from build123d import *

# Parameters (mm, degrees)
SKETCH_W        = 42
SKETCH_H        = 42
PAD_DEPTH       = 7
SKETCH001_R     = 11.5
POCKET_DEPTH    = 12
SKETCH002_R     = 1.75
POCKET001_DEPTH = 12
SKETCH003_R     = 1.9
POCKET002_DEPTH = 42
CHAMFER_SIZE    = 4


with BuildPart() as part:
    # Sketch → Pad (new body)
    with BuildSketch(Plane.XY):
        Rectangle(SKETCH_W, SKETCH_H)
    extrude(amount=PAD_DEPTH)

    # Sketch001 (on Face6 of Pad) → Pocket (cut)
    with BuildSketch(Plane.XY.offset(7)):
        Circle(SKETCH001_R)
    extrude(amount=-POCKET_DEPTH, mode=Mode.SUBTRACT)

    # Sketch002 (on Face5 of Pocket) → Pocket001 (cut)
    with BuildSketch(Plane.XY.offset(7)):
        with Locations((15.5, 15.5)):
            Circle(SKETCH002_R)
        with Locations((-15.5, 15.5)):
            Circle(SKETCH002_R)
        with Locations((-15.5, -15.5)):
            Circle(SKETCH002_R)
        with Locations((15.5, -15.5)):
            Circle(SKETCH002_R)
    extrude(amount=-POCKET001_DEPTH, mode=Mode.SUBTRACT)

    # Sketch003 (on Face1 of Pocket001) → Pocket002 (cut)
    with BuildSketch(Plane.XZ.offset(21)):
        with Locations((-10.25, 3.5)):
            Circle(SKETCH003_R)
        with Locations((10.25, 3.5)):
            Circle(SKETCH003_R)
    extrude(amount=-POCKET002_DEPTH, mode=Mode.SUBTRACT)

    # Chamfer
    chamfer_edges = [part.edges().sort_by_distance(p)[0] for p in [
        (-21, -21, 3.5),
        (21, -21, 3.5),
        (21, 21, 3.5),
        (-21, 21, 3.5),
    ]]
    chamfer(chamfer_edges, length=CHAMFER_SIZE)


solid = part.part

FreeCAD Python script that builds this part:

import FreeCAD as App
import Part
import Sketcher

V = App.Vector
Q = App.Units.Quantity


def edges_at(feature, points):
    """Names of the edges that pass closest to the given points."""
    edges = feature.Shape.Edges
    near = lambda p: min(range(len(edges)), key=lambda i: edges[i].distToShape(Part.Vertex(*p))[0])
    return sorted({f"Edge{near(p) + 1}" for p in points})


def add_polygon(sketch, points):
    """Adds a closed chain of lines whose ends are joined by coincident constraints."""
    first, n = sketch.GeometryCount, len(points)
    for a, b in zip(points, points[1:] + points[:1]):
        sketch.addGeometry(Part.LineSegment(App.Vector(*a, 0), App.Vector(*b, 0)), False)
    for i in range(n):
        sketch.addConstraint(Sketcher.Constraint("Coincident", first + i, 2, first + (i + 1) % n, 1))

doc = App.newDocument("Part")
params = doc.addObject("Spreadsheet::Sheet", "Params")
for row, (alias, value) in enumerate([
    ("sketch1_width", "42 mm"),
    ("pad1_length", "7 mm"),
    ("sketch2_diameter", "23 mm"),
    ("pocket1_length", "12 mm"),
    ("sketch3_diameter", "3.5 mm"),
    ("pocket2_length", "12 mm"),
    ("sketch4_diameter", "3.8 mm"),
    ("pocket3_length", "42 mm"),
    ("chamfer_size", "4 mm"),
], start=1):
    params.set(f"A{row}", alias)
    params.set(f"B{row}", "=" + value)
    params.setAlias(f"B{row}", alias)

body = doc.addObject("PartDesign::Body", "Body")

sketch1 = doc.addObject("Sketcher::SketchObject", "Sketch")
body.addObject(sketch1)
sketch1.AttachmentSupport = (doc.XY_Plane, [""])
sketch1.MapMode = "FlatFace"
add_polygon(sketch1, [(-21, 21), (-21, -21), (21, -21), (21, 21)])
sketch1.addConstraint(Sketcher.Constraint("Vertical", 0))
sketch1.addConstraint(Sketcher.Constraint("Horizontal", 1))
sketch1.addConstraint(Sketcher.Constraint("Vertical", 2))
sketch1.addConstraint(Sketcher.Constraint("Horizontal", 3))
sketch1.addConstraint(Sketcher.Constraint("Symmetric", 0, 2, 2, 2, -1, 1))
sketch1.addConstraint(Sketcher.Constraint("Equal", 3, 0))
sketch1.addConstraint(Sketcher.Constraint("DistanceX", 1, 1, 1, 2, Q("42 mm")))
sketch1.setExpression("Constraints[10]", "Params.sketch1_width")
pad1 = doc.addObject("PartDesign::Pad", "Pad")
body.addObject(pad1)
pad1.Profile = sketch1
pad1.setExpression("Length", "Params.pad1_length")

sketch2 = doc.addObject("Sketcher::SketchObject", "Sketch001")
body.addObject(sketch2)
sketch2.AttachmentSupport = (doc.XY_Plane, [""])
sketch2.MapMode = "FlatFace"
sketch2.AttachmentOffset = App.Placement(V(0, 0, 7), App.Rotation())
sketch2.addGeometry(Part.Circle(V(0, 0, 0), V(0, 0, 1), 11.5), False)
sketch2.addConstraint(Sketcher.Constraint("Coincident", 0, 3, -1, 1))
sketch2.addConstraint(Sketcher.Constraint("Diameter", 0, Q("23 mm")))
sketch2.setExpression("Constraints[1]", "Params.sketch2_diameter")
pocket1 = doc.addObject("PartDesign::Pocket", "Pocket")
body.addObject(pocket1)
pocket1.Profile = sketch2
pocket1.setExpression("Length", "Params.pocket1_length")

sketch3 = doc.addObject("Sketcher::SketchObject", "Sketch002")
body.addObject(sketch3)
sketch3.AttachmentSupport = (doc.XY_Plane, [""])
sketch3.MapMode = "FlatFace"
sketch3.AttachmentOffset = App.Placement(V(0, 0, 7), App.Rotation())
sketch3.addGeometry(Part.Circle(V(15.5, 15.5, 0), V(0, 0, 1), 1.75), False)
sketch3.addGeometry(Part.Circle(V(-15.5, 15.5, 0), V(0, 0, 1), 1.75), False)
sketch3.addGeometry(Part.Circle(V(-15.5, -15.5, 0), V(0, 0, 1), 1.75), False)
sketch3.addGeometry(Part.Circle(V(15.5, -15.5, 0), V(0, 0, 1), 1.75), False)
sketch3.addConstraint(Sketcher.Constraint("Equal", 0, 1))
sketch3.addConstraint(Sketcher.Constraint("Equal", 1, 2))
sketch3.addConstraint(Sketcher.Constraint("Equal", 2, 3))
sketch3.addConstraint(Sketcher.Constraint("Symmetric", 0, 3, 2, 3, -1, 1))
sketch3.addConstraint(Sketcher.Constraint("Symmetric", 1, 3, 3, 3, -1, 1))
sketch3.addConstraint(Sketcher.Constraint("Symmetric", 0, 3, 1, 3, -2))
sketch3.addConstraint(Sketcher.Constraint("Diameter", 0, Q("3.5 mm")))
sketch3.addConstraint(Sketcher.Constraint("DistanceX", 1, 3, 0, 3, Q("31 mm")))
sketch3.addConstraint(Sketcher.Constraint("DistanceY", 2, 3, 1, 3, Q("31 mm")))
sketch3.setExpression("Constraints[6]", "Params.sketch3_diameter")
pocket2 = doc.addObject("PartDesign::Pocket", "Pocket001")
body.addObject(pocket2)
pocket2.Profile = sketch3
pocket2.setExpression("Length", "Params.pocket2_length")

sketch4 = doc.addObject("Sketcher::SketchObject", "Sketch003")
body.addObject(sketch4)
sketch4.AttachmentSupport = (doc.XZ_Plane, [""])
sketch4.MapMode = "FlatFace"
sketch4.AttachmentOffset = App.Placement(V(0, 0, 21), App.Rotation())
sketch4.addGeometry(Part.Circle(V(-10.25, 3.5, 0), V(0, 0, 1), 1.9), False)
sketch4.addGeometry(Part.Circle(V(10.25, 3.5, 0), V(0, 0, 1), 1.9), False)
sketch4.addConstraint(Sketcher.Constraint("Equal", 0, 1))
sketch4.addConstraint(Sketcher.Constraint("Symmetric", 0, 3, 1, 3, -2))
sketch4.addConstraint(Sketcher.Constraint("Diameter", 0, Q("3.8 mm")))
sketch4.addConstraint(Sketcher.Constraint("DistanceY", -1, 1, 0, 3, Q("3.5 mm")))
sketch4.addConstraint(Sketcher.Constraint("DistanceX", 0, 3, 1, 3, Q("20.5 mm")))
sketch4.setExpression("Constraints[2]", "Params.sketch4_diameter")
pocket3 = doc.addObject("PartDesign::Pocket", "Pocket002")
body.addObject(pocket3)
pocket3.Profile = sketch4
pocket3.setExpression("Length", "Params.pocket3_length")
doc.recompute()

chamfer = doc.addObject("PartDesign::Chamfer", "Chamfer")
body.addObject(chamfer)
chamfer.Base = (pocket3, edges_at(pocket3, [
    (-21, -21, 3.5),
    (21, -21, 3.5),
    (21, 21, 3.5),
    (-21, 21, 3.5),
]))
chamfer.setExpression("Size", "Params.chamfer_size")

doc.recompute()
